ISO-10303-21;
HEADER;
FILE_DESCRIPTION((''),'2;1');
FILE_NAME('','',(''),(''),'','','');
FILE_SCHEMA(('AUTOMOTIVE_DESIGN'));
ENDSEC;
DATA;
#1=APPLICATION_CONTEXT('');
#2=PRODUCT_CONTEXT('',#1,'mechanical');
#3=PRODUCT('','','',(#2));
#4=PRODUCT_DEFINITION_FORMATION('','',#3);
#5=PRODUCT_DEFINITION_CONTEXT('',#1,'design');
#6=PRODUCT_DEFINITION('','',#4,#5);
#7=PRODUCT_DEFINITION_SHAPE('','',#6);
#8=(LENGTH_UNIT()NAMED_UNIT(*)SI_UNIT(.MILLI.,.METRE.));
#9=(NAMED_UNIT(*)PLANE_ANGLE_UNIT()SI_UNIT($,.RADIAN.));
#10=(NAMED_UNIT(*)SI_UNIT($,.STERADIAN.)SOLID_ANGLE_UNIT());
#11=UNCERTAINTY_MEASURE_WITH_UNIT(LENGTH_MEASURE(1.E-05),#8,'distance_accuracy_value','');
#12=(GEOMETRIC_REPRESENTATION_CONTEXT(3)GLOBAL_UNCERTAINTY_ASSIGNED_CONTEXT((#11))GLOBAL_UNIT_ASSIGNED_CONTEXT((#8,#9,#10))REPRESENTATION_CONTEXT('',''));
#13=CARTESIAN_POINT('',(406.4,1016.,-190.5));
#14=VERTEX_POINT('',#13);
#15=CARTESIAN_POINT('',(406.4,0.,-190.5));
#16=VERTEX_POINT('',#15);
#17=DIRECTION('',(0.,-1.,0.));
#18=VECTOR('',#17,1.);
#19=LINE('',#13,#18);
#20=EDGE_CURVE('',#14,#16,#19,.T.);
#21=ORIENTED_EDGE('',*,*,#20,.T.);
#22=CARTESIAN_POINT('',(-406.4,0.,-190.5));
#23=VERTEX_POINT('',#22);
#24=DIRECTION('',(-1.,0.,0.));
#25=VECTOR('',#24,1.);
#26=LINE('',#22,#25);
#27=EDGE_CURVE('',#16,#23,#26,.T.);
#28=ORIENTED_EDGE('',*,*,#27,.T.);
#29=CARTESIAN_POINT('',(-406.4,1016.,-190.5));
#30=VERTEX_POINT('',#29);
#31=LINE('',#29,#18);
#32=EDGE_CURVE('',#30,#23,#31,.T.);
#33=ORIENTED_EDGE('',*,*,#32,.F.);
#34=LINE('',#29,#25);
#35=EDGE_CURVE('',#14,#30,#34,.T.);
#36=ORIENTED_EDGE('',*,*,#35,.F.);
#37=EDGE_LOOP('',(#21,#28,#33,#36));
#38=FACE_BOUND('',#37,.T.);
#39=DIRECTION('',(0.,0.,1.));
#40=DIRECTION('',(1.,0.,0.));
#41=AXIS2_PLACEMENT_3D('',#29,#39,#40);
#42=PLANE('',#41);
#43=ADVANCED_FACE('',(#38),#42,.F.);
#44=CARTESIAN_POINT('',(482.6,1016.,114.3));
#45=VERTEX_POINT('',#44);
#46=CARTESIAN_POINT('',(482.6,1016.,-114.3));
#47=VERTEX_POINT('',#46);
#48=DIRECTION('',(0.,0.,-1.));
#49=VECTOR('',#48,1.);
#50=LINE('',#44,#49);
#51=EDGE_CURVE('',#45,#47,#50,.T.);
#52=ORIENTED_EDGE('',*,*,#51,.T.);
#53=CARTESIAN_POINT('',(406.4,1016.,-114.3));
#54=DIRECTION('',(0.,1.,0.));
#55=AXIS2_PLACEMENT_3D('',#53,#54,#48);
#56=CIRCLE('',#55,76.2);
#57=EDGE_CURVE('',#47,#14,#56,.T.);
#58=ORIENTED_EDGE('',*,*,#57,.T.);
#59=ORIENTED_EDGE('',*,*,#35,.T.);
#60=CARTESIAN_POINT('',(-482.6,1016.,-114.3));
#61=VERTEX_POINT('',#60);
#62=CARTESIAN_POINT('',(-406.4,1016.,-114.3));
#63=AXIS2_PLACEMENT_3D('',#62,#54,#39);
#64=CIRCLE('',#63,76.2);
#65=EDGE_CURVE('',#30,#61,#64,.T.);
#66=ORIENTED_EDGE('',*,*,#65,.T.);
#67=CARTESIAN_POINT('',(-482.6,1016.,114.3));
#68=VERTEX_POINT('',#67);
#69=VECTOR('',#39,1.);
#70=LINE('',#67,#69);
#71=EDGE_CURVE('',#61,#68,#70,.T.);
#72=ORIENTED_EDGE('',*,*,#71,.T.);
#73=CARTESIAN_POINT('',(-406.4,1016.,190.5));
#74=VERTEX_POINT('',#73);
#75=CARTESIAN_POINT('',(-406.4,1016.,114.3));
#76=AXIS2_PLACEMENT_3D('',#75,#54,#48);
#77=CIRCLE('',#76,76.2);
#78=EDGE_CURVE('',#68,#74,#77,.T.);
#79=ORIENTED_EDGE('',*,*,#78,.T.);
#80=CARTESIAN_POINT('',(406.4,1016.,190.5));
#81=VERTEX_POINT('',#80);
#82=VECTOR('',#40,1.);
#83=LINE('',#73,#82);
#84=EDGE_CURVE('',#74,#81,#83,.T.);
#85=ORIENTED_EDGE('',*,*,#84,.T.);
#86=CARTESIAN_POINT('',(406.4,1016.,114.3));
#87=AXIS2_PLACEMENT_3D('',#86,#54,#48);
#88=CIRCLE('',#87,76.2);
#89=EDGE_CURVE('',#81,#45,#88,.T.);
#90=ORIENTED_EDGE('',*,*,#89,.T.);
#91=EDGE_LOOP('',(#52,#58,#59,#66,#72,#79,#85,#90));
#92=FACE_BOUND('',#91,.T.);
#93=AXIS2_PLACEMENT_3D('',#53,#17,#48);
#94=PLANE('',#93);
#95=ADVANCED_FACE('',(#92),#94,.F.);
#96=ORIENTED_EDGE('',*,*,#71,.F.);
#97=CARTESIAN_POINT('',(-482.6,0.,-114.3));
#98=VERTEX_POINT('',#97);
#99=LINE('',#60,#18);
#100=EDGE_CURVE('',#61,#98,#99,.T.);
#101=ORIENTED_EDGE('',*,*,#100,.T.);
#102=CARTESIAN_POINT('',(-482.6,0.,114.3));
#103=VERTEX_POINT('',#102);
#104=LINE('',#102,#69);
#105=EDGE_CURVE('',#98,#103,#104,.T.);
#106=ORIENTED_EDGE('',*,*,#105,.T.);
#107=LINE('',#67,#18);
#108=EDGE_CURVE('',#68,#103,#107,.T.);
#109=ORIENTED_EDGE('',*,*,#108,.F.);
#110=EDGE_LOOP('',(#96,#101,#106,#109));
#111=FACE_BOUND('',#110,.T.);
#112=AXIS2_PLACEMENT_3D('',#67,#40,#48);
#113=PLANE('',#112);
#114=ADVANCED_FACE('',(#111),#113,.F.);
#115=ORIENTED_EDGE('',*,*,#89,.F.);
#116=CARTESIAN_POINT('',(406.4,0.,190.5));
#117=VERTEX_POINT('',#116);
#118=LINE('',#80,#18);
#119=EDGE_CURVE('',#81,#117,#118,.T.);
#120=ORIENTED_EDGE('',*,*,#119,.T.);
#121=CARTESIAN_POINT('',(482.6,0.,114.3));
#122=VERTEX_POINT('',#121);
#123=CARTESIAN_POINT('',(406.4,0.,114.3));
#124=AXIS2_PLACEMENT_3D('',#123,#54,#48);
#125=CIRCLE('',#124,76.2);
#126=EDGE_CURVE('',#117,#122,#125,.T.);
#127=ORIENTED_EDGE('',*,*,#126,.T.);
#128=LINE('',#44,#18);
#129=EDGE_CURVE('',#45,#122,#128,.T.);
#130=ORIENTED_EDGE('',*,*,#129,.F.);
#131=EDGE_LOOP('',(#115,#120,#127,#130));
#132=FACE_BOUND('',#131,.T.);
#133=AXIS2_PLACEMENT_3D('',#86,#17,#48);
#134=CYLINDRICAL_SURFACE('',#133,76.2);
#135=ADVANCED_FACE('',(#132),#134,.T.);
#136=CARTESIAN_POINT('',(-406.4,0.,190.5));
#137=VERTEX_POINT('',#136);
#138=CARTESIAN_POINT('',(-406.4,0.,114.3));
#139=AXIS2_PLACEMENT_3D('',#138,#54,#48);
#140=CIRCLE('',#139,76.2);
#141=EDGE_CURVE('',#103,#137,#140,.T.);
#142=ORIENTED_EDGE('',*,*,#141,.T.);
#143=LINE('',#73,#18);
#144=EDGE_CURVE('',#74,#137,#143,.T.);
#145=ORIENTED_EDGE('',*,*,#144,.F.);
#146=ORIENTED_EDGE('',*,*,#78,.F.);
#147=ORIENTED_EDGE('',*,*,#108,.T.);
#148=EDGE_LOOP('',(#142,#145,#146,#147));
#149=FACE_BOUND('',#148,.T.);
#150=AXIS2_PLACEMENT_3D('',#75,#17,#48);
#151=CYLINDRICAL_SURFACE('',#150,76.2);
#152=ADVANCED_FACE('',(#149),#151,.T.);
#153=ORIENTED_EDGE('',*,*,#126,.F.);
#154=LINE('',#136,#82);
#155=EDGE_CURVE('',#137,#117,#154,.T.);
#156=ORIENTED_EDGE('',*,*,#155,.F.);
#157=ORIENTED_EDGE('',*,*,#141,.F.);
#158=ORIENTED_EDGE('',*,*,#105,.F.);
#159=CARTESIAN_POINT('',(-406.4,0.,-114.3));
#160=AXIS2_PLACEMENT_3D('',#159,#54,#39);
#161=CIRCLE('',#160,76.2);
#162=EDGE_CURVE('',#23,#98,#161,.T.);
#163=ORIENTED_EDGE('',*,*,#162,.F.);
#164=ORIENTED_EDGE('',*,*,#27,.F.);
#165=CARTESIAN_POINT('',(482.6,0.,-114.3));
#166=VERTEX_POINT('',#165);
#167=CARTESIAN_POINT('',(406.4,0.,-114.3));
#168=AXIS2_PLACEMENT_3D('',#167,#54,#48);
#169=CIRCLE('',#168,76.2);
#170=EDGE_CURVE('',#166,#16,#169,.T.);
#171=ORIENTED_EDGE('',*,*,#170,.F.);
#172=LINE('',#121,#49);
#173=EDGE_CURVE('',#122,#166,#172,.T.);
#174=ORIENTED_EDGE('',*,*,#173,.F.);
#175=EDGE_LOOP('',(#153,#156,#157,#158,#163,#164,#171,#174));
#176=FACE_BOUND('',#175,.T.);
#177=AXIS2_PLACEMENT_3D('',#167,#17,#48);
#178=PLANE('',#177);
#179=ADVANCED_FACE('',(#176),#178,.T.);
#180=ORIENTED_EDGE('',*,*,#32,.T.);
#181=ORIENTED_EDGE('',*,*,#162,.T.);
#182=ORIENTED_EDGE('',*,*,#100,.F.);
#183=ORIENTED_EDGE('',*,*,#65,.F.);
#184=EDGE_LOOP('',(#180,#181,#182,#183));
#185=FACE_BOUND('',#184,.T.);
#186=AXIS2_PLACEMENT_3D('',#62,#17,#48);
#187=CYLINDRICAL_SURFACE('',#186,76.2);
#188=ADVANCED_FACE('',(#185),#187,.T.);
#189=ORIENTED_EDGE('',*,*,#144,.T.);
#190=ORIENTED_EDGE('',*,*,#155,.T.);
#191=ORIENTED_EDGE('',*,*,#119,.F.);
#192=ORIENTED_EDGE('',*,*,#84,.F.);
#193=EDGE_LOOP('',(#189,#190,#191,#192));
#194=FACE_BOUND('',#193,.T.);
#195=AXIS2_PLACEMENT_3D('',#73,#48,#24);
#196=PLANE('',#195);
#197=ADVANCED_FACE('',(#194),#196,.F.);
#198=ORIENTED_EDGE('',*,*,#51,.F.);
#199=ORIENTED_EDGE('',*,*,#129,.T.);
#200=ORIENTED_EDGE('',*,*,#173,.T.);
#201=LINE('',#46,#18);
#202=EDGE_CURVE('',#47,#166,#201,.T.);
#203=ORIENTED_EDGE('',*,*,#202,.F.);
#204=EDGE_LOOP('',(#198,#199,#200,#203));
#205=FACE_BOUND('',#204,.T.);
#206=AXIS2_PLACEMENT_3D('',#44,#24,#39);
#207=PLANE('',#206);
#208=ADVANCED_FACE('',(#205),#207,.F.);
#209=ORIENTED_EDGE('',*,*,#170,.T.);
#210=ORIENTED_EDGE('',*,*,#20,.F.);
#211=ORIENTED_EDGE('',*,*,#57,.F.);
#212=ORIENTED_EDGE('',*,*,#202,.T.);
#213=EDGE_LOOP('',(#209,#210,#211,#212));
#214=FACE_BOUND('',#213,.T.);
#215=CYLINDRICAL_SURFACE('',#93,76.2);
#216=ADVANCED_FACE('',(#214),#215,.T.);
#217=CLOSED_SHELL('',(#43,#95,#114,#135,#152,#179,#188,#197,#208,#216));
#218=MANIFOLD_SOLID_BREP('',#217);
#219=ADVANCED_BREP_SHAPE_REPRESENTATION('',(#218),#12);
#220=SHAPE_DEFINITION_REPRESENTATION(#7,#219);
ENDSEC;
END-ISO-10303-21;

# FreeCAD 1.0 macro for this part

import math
import FreeCAD as App
import Part
import Sketcher

V = App.Vector
Q = App.Units.Quantity

doc = App.newDocument("Part")
body = doc.addObject("PartDesign::Body", "Body")

# Sketch on XZ plane
sketch1 = body.newObject("Sketcher::SketchObject", "Sketch")
sketch1.AttachmentSupport = (doc.getObject("XZ_Plane"), [""])
sketch1.MapMode = "FlatFace"
sketch1.addGeometry([
    Part.LineSegment(V(-406, 190, 0), V(406, 190, 0)),  # 0
    Part.ArcOfCircle(Part.Circle(V(406, 114, 0), V(0, 0, 1), 76), math.radians(0), math.radians(90)),  # 1
    Part.LineSegment(V(483, 114, 0), V(483, -114, 0)),  # 2
    Part.ArcOfCircle(Part.Circle(V(406, -114, 0), V(0, 0, 1), 76), math.radians(-90), math.radians(0)),  # 3
    Part.LineSegment(V(406, -190, 0), V(-406, -190, 0)),  # 4
    Part.ArcOfCircle(Part.Circle(V(-406, -114, 0), V(0, 0, 1), 76), math.radians(-180), math.radians(-90)),  # 5
    Part.LineSegment(V(-483, -114, 0), V(-483, 114, 0)),  # 6
    Part.ArcOfCircle(Part.Circle(V(-406, 114, 0), V(0, 0, 1), 76), math.radians(90), math.radians(180)),  # 7
], False)
sketch1.addConstraint([
    Sketcher.Constraint("Tangent", 0, 2, 1, 2),
    Sketcher.Constraint("Tangent", 1, 1, 2, 1),
    Sketcher.Constraint("Tangent", 2, 2, 3, 2),
    Sketcher.Constraint("Tangent", 3, 1, 4, 1),
    Sketcher.Constraint("Tangent", 4, 2, 5, 2),
    Sketcher.Constraint("Tangent", 5, 1, 6, 1),
    Sketcher.Constraint("Tangent", 6, 2, 7, 2),
    Sketcher.Constraint("Tangent", 7, 1, 0, 1),
    Sketcher.Constraint("Horizontal", 0),
    Sketcher.Constraint("Vertical", 2),
    Sketcher.Constraint("Horizontal", 4),
    Sketcher.Constraint("Vertical", 6),
    Sketcher.Constraint("Equal", 1, 3),
    Sketcher.Constraint("Equal", 3, 5),
    Sketcher.Constraint("Equal", 5, 7),
    Sketcher.Constraint("Symmetric", 1, 3, 5, 3, -1, 1),
    Sketcher.Constraint("Radius", 1, Q("3 in")),
    Sketcher.Constraint("DistanceX", 0, 1, 0, 2, Q("32 in")),
    Sketcher.Constraint("DistanceY", 2, 2, 2, 1, Q("9 in")),
])
pad1 = body.newObject("PartDesign::Pad", "Pad")
pad1.Profile = sketch1
pad1.Length = Q("40 in")
pad1.Reversed = True

doc.recompute()
